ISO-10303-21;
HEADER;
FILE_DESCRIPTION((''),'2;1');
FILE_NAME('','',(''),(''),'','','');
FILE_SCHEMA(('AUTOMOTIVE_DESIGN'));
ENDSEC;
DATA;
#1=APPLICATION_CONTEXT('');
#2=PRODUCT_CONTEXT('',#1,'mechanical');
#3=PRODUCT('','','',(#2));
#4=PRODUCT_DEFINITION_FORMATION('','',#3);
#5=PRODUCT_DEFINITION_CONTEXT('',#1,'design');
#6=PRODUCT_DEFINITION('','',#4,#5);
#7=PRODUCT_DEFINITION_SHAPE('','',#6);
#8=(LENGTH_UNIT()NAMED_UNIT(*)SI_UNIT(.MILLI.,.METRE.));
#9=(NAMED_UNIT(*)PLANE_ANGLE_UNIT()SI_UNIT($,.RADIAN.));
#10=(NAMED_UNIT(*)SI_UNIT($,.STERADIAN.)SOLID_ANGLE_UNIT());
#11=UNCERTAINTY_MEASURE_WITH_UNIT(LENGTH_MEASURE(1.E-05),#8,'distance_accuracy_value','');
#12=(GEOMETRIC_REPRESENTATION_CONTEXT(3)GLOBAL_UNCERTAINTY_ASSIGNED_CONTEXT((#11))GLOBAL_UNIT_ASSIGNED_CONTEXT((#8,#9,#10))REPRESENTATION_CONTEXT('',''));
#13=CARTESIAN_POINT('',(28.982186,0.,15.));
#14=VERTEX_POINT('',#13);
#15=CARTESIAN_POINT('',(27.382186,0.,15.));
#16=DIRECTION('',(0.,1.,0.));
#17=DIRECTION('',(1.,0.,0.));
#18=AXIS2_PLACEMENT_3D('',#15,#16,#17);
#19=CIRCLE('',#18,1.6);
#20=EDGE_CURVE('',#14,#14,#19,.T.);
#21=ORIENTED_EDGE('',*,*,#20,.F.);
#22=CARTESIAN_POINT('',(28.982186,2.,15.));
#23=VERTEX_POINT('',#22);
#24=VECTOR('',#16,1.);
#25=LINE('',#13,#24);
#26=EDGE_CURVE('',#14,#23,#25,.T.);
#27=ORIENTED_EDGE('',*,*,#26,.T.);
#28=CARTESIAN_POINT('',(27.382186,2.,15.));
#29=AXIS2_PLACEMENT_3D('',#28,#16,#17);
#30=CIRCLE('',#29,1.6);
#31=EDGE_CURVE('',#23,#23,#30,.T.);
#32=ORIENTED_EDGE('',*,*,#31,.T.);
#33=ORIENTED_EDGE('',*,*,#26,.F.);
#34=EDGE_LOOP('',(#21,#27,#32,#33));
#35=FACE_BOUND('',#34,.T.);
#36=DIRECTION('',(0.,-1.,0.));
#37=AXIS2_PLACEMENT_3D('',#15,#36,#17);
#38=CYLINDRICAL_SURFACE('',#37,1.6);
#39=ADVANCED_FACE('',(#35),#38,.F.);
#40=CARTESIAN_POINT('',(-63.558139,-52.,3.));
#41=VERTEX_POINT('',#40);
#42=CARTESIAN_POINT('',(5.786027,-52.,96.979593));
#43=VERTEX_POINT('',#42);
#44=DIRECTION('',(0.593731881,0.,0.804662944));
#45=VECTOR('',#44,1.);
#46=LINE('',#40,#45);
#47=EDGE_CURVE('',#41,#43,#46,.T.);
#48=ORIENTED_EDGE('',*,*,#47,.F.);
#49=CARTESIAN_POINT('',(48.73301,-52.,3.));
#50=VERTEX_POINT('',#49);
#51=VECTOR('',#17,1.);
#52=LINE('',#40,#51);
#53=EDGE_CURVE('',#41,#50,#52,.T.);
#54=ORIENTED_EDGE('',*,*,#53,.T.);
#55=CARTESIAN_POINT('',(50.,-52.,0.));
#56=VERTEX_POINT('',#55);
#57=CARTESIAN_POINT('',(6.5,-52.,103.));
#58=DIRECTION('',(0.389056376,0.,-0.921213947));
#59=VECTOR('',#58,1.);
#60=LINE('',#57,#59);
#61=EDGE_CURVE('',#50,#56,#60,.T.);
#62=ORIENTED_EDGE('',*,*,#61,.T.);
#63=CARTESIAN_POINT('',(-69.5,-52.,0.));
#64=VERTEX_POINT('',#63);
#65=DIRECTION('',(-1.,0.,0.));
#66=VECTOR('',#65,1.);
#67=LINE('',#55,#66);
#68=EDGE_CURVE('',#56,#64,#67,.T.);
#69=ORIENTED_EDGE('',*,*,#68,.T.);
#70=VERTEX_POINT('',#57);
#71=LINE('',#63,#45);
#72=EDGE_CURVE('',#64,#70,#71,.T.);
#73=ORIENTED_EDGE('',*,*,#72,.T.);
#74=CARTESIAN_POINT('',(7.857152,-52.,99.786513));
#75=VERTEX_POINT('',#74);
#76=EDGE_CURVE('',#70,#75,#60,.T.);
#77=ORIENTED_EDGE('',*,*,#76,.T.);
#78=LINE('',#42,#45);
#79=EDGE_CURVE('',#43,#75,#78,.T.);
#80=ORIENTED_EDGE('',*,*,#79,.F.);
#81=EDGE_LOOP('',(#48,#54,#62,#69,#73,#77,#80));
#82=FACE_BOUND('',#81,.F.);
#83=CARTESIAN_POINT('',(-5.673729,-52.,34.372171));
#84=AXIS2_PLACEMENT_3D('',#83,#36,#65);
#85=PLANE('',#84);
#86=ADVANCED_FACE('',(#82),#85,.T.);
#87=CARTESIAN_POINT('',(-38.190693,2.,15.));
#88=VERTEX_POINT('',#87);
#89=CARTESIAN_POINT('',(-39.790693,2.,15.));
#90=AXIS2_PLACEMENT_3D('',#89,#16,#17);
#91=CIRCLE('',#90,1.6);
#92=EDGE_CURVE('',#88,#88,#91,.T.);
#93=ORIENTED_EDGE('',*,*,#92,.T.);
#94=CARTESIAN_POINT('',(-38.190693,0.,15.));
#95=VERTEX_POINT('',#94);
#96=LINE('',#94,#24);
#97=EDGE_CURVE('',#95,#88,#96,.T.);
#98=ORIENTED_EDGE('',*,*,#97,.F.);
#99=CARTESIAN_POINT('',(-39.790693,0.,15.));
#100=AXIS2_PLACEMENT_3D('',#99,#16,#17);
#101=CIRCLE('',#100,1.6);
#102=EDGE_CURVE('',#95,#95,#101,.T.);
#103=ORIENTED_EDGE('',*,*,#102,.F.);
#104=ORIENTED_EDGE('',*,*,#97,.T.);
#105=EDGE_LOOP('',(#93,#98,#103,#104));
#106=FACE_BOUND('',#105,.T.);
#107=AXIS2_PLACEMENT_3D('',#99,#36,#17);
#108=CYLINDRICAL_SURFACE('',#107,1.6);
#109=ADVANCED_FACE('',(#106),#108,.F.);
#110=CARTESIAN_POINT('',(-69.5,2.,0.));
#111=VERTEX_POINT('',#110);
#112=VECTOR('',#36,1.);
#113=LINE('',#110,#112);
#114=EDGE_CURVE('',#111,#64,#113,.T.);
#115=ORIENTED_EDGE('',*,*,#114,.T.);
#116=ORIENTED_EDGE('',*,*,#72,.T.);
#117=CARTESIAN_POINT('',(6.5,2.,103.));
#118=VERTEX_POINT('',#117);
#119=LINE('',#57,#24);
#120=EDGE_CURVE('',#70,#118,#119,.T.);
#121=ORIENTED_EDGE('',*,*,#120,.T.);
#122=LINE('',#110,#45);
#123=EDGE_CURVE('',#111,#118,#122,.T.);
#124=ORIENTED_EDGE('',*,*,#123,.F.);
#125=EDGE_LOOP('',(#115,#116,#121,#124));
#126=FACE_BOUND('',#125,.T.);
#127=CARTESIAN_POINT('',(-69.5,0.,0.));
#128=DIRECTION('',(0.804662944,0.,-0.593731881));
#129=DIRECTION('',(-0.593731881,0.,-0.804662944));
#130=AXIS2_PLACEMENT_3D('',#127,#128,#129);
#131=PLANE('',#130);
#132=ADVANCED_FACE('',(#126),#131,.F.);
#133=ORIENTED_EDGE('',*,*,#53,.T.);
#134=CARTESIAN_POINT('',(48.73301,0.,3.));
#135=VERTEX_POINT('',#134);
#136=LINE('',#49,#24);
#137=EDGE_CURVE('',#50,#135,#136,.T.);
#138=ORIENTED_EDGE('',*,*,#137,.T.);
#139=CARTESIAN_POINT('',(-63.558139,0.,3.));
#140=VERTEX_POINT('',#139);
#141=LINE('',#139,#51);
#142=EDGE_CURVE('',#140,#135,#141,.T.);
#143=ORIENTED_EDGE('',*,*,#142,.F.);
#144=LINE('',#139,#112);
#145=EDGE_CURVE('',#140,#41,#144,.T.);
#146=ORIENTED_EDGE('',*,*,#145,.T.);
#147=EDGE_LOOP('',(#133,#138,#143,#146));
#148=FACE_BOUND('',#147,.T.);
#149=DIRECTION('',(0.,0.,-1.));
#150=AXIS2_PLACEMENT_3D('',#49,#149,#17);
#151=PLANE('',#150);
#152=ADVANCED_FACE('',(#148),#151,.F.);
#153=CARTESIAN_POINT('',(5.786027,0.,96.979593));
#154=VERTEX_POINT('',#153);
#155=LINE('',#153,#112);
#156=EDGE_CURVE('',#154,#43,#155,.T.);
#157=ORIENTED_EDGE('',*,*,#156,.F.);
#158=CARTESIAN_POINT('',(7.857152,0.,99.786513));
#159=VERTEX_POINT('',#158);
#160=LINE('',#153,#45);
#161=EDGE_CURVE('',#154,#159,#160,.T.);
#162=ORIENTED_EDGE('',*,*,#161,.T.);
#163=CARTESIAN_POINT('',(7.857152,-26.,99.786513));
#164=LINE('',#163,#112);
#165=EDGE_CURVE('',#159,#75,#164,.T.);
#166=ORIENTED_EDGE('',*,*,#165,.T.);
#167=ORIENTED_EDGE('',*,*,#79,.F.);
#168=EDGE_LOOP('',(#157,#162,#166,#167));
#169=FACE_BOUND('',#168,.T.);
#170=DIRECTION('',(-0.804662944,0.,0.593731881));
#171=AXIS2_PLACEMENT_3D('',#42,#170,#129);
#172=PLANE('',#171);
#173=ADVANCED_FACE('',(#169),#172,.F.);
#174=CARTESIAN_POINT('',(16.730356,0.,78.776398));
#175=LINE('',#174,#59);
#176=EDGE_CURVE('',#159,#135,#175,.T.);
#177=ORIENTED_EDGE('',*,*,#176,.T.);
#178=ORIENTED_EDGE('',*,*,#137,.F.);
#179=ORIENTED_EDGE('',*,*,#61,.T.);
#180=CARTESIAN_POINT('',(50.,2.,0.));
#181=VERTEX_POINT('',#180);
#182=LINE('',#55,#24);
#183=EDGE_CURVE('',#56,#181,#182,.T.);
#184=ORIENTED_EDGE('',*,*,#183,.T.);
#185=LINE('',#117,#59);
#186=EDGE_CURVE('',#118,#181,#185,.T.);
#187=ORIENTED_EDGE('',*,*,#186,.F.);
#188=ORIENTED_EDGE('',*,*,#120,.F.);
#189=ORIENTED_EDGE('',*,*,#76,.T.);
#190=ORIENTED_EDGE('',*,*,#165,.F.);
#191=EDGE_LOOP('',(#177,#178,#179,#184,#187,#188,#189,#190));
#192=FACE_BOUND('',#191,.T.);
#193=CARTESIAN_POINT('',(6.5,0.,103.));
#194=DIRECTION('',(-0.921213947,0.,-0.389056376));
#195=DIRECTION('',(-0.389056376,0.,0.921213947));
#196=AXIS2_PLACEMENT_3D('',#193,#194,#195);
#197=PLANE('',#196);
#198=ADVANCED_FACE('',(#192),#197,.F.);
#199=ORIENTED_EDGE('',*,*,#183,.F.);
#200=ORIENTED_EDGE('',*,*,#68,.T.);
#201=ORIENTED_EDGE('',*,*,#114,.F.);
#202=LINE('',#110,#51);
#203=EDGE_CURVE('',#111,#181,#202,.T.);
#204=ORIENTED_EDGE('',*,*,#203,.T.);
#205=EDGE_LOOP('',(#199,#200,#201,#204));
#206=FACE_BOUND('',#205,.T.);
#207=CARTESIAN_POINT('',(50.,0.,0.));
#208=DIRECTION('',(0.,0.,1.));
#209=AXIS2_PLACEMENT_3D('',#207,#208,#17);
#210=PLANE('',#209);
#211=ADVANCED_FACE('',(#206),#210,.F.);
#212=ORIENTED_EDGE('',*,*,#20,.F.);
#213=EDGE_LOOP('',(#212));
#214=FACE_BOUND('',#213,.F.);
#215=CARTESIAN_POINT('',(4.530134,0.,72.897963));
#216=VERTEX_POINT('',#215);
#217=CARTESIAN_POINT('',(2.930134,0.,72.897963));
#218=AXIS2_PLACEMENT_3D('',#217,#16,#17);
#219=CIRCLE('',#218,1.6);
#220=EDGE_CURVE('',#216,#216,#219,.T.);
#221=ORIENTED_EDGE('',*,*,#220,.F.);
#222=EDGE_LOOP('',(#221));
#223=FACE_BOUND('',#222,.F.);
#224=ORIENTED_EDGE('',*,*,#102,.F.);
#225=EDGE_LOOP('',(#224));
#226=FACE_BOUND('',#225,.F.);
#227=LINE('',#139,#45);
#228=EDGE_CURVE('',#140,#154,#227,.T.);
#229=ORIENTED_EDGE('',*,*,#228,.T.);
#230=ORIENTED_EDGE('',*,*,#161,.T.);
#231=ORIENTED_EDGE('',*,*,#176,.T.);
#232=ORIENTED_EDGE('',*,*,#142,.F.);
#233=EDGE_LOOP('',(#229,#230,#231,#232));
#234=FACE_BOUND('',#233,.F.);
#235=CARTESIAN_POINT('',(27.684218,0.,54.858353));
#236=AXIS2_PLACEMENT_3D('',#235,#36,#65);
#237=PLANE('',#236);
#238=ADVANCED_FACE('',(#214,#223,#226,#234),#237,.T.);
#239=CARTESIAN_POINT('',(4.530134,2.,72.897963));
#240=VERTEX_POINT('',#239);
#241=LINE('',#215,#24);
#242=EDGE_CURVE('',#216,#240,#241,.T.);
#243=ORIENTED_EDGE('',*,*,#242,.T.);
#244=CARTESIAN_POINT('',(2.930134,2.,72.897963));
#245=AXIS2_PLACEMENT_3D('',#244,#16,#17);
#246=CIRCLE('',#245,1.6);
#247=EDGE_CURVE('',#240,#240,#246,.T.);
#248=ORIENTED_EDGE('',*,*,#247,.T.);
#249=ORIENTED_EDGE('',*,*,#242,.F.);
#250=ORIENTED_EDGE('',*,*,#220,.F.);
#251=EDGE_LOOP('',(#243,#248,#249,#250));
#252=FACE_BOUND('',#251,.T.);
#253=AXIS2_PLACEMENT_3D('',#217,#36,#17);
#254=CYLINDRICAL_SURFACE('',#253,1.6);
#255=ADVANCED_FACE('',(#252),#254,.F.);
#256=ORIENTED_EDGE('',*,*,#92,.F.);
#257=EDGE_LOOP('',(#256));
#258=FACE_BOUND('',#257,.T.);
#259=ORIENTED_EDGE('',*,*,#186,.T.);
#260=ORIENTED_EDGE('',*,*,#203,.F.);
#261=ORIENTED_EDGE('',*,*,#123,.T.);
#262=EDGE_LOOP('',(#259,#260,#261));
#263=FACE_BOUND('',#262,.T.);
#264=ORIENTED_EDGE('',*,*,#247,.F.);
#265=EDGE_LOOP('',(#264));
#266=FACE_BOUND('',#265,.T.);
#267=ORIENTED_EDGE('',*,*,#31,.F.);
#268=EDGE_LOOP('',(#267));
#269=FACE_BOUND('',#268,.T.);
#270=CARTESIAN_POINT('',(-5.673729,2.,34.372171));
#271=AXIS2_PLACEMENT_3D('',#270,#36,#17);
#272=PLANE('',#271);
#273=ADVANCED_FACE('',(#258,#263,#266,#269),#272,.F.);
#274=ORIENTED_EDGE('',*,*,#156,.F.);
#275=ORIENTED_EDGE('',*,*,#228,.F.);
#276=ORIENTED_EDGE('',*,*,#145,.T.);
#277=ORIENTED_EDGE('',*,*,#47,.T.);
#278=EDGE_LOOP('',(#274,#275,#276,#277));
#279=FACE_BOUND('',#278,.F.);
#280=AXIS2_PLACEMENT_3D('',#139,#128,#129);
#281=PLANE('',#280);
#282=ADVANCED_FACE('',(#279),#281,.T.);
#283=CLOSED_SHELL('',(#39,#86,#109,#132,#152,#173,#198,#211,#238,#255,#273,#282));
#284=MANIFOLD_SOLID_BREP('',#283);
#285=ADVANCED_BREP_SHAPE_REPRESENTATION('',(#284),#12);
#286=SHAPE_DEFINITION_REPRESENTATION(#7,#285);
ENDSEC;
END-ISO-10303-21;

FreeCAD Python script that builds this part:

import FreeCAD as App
import Part
import Sketcher
from FreeCAD import Vector
Q = App.Units.Quantity


def add_polygon(sketch, points):
    """Adds a closed chain of lines whose ends are joined by coincident constraints."""
    first, n = sketch.GeometryCount, len(points)
    for a, b in zip(points, points[1:] + points[:1]):
        sketch.addGeometry(Part.LineSegment(App.Vector(*a, 0), App.Vector(*b, 0)), False)
    for i in range(n):
        sketch.addConstraint(Sketcher.Constraint("Coincident", first + i, 2, first + (i + 1) % n, 1))

doc = App.newDocument("Part")
body = doc.addObject("PartDesign::Body", "Body")

# Sketch on XZ plane
sketch1 = body.newObject("Sketcher::SketchObject", "Sketch")
sketch1.AttachmentSupport = (doc.getObject("XZ_Plane"), [""])
sketch1.MapMode = "FlatFace"
add_polygon(sketch1, [(-70, 0), (50, 0), (6, -103)])  # lines 0-2
sketch1.addConstraint([
    Sketcher.Constraint("Horizontal", 0),
    Sketcher.Constraint("PointOnObject", 0, 2, -1),
    Sketcher.Constraint("DistanceX", 0, 1, 0, 2, Q("119.5 mm")),
    Sketcher.Constraint("DistanceX", -1, 1, 0, 2, Q("50 mm")),
    Sketcher.Constraint("DistanceY", 1, 2, -1, 1, Q("103 mm")),
    Sketcher.Constraint("DistanceX", 2, 2, 1, 2, Q("76 mm")),
])
pad1 = body.newObject("PartDesign::Pad", "Pad")
pad1.Profile = sketch1
pad1.Length = 2
pad1.Reversed = True

# Sketch on XZ plane
sketch2 = body.newObject("Sketcher::SketchObject", "Sketch001")
sketch2.AttachmentSupport = (doc.getObject("XZ_Plane"), [""])
sketch2.MapMode = "FlatFace"
add_polygon(sketch2, [(50, 0), (-70, 0), (6, -103)])  # lines 0-2
add_polygon(sketch2, [(45, -3), (6, -97), (-64, -3)])  # lines 3-5
sketch2.addConstraint([
    Sketcher.Constraint("Horizontal", 0),
    Sketcher.Constraint("Horizontal", 5),
    Sketcher.Constraint("PointOnObject", 0, 2, -1),
    Sketcher.Constraint("Parallel", 2, 3),
    Sketcher.Constraint("Parallel", 1, 4),
    Sketcher.Constraint("DistanceX", 0, 2, 0, 1, Q("119.5 mm")),
    Sketcher.Constraint("DistanceY", 1, 2, -1, 1, Q("103 mm")),
    Sketcher.Constraint("DistanceX", -1, 1, 2, 2, Q("50 mm")),
    Sketcher.Constraint("DistanceY", 4, 2, -1, 1, Q("3 mm")),
    Sketcher.Constraint("DistanceX", 0, 2, 1, 2, Q("76 mm")),
    Sketcher.Constraint("Distance", 3, Q("102.017119 mm")),
    Sketcher.Constraint("DistanceX", 4, 2, -1, 1, Q("63.558139 mm")),
])
pad2 = body.newObject("PartDesign::Pad", "Pad001")
pad2.Profile = sketch2
pad2.Length = 52

# Sketch on XZ plane
sketch3 = body.newObject("Sketcher::SketchObject", "Sketch002")
sketch3.AttachmentSupport = (doc.getObject("XZ_Plane"), [""])
sketch3.MapMode = "FlatFace"
sketch3.addGeometry([
    Part.Circle(Vector(-39.8, -15, 0), Vector(0, 0, 1), 1.6),
    Part.Circle(Vector(27.4, -15, 0), Vector(0, 0, 1), 1.6),
    Part.Circle(Vector(2.9, -72.9, 0), Vector(0, 0, 1), 1.6),
], False)
sketch3.addConstraint([
    Sketcher.Constraint("Equal", 0, 1),
    Sketcher.Constraint("Equal", 1, 2),
    Sketcher.Constraint("Horizontal", 0, 3, 1, 3),
    Sketcher.Constraint("Diameter", 0, Q("3.2 mm")),
    Sketcher.Constraint("DistanceY", 0, 3, -1, 1, Q("15 mm")),
    Sketcher.Constraint("DistanceX", 0, 3, 1, 3, Q("67.172879 mm")),
    Sketcher.Constraint("DistanceX", 0, 3, -1, 1, Q("39.790693 mm")),
    Sketcher.Constraint("DistanceX", -1, 1, 2, 3, Q("2.930134 mm")),
    Sketcher.Constraint("DistanceY", 2, 3, -1, 1, Q("72.897963 mm")),
])
pocket1 = body.newObject("PartDesign::Pocket", "Pocket")
pocket1.Profile = sketch3
pocket1.Length = 52

# Sketch on XZ plane
sketch4 = body.newObject("Sketcher::SketchObject", "Sketch003")
sketch4.AttachmentSupport = (doc.getObject("XZ_Plane"), [""])
sketch4.MapMode = "FlatFace"
sketch4.AttachmentOffset = App.Placement(Vector(0, 0, 52), App.Rotation())
add_polygon(sketch4, [(5.8, -97), (13.6, -107.5), (48.7, -3), (45.5, -3)])  # lines 0-3
sketch4.addConstraint([
    Sketcher.Constraint("Horizontal", 2),
    Sketcher.Constraint("DistanceY", 1, 2, -1, 1, Q("3 mm")),
    Sketcher.Constraint("Distance", 0, Q("13.104049 mm")),
    Sketcher.Constraint("Distance", 3, Q("102.017119 mm")),
    Sketcher.Constraint("DistanceX", 2, 2, 2, 1, Q("3.256572 mm")),
    Sketcher.Constraint("DistanceX", -1, 1, 0, 2, Q("13.566318 mm")),
    Sketcher.Constraint("DistanceX", -1, 1, 1, 2, Q("48.73301 mm")),
    Sketcher.Constraint("DistanceX", 3, 2, 0, 2, Q("7.780291 mm")),
])
pocket2 = body.newObject("PartDesign::Pocket", "Pocket001")
pocket2.Profile = sketch4
pocket2.Length = 52
body2 = doc.addObject("PartDesign::Body", "Body001")
doc.recompute()

mirroring = doc.addObject("Part::Mirroring", "Mirroring")
mirroring.Source = body
mirroring.Base = Vector(0, 2, 0)
mirroring.Normal = Vector(0, 0, -1)
body2.BaseFeature = mirroring
doc.recompute()
body.Visibility = False
mirroring.Visibility = False

doc.recompute()
